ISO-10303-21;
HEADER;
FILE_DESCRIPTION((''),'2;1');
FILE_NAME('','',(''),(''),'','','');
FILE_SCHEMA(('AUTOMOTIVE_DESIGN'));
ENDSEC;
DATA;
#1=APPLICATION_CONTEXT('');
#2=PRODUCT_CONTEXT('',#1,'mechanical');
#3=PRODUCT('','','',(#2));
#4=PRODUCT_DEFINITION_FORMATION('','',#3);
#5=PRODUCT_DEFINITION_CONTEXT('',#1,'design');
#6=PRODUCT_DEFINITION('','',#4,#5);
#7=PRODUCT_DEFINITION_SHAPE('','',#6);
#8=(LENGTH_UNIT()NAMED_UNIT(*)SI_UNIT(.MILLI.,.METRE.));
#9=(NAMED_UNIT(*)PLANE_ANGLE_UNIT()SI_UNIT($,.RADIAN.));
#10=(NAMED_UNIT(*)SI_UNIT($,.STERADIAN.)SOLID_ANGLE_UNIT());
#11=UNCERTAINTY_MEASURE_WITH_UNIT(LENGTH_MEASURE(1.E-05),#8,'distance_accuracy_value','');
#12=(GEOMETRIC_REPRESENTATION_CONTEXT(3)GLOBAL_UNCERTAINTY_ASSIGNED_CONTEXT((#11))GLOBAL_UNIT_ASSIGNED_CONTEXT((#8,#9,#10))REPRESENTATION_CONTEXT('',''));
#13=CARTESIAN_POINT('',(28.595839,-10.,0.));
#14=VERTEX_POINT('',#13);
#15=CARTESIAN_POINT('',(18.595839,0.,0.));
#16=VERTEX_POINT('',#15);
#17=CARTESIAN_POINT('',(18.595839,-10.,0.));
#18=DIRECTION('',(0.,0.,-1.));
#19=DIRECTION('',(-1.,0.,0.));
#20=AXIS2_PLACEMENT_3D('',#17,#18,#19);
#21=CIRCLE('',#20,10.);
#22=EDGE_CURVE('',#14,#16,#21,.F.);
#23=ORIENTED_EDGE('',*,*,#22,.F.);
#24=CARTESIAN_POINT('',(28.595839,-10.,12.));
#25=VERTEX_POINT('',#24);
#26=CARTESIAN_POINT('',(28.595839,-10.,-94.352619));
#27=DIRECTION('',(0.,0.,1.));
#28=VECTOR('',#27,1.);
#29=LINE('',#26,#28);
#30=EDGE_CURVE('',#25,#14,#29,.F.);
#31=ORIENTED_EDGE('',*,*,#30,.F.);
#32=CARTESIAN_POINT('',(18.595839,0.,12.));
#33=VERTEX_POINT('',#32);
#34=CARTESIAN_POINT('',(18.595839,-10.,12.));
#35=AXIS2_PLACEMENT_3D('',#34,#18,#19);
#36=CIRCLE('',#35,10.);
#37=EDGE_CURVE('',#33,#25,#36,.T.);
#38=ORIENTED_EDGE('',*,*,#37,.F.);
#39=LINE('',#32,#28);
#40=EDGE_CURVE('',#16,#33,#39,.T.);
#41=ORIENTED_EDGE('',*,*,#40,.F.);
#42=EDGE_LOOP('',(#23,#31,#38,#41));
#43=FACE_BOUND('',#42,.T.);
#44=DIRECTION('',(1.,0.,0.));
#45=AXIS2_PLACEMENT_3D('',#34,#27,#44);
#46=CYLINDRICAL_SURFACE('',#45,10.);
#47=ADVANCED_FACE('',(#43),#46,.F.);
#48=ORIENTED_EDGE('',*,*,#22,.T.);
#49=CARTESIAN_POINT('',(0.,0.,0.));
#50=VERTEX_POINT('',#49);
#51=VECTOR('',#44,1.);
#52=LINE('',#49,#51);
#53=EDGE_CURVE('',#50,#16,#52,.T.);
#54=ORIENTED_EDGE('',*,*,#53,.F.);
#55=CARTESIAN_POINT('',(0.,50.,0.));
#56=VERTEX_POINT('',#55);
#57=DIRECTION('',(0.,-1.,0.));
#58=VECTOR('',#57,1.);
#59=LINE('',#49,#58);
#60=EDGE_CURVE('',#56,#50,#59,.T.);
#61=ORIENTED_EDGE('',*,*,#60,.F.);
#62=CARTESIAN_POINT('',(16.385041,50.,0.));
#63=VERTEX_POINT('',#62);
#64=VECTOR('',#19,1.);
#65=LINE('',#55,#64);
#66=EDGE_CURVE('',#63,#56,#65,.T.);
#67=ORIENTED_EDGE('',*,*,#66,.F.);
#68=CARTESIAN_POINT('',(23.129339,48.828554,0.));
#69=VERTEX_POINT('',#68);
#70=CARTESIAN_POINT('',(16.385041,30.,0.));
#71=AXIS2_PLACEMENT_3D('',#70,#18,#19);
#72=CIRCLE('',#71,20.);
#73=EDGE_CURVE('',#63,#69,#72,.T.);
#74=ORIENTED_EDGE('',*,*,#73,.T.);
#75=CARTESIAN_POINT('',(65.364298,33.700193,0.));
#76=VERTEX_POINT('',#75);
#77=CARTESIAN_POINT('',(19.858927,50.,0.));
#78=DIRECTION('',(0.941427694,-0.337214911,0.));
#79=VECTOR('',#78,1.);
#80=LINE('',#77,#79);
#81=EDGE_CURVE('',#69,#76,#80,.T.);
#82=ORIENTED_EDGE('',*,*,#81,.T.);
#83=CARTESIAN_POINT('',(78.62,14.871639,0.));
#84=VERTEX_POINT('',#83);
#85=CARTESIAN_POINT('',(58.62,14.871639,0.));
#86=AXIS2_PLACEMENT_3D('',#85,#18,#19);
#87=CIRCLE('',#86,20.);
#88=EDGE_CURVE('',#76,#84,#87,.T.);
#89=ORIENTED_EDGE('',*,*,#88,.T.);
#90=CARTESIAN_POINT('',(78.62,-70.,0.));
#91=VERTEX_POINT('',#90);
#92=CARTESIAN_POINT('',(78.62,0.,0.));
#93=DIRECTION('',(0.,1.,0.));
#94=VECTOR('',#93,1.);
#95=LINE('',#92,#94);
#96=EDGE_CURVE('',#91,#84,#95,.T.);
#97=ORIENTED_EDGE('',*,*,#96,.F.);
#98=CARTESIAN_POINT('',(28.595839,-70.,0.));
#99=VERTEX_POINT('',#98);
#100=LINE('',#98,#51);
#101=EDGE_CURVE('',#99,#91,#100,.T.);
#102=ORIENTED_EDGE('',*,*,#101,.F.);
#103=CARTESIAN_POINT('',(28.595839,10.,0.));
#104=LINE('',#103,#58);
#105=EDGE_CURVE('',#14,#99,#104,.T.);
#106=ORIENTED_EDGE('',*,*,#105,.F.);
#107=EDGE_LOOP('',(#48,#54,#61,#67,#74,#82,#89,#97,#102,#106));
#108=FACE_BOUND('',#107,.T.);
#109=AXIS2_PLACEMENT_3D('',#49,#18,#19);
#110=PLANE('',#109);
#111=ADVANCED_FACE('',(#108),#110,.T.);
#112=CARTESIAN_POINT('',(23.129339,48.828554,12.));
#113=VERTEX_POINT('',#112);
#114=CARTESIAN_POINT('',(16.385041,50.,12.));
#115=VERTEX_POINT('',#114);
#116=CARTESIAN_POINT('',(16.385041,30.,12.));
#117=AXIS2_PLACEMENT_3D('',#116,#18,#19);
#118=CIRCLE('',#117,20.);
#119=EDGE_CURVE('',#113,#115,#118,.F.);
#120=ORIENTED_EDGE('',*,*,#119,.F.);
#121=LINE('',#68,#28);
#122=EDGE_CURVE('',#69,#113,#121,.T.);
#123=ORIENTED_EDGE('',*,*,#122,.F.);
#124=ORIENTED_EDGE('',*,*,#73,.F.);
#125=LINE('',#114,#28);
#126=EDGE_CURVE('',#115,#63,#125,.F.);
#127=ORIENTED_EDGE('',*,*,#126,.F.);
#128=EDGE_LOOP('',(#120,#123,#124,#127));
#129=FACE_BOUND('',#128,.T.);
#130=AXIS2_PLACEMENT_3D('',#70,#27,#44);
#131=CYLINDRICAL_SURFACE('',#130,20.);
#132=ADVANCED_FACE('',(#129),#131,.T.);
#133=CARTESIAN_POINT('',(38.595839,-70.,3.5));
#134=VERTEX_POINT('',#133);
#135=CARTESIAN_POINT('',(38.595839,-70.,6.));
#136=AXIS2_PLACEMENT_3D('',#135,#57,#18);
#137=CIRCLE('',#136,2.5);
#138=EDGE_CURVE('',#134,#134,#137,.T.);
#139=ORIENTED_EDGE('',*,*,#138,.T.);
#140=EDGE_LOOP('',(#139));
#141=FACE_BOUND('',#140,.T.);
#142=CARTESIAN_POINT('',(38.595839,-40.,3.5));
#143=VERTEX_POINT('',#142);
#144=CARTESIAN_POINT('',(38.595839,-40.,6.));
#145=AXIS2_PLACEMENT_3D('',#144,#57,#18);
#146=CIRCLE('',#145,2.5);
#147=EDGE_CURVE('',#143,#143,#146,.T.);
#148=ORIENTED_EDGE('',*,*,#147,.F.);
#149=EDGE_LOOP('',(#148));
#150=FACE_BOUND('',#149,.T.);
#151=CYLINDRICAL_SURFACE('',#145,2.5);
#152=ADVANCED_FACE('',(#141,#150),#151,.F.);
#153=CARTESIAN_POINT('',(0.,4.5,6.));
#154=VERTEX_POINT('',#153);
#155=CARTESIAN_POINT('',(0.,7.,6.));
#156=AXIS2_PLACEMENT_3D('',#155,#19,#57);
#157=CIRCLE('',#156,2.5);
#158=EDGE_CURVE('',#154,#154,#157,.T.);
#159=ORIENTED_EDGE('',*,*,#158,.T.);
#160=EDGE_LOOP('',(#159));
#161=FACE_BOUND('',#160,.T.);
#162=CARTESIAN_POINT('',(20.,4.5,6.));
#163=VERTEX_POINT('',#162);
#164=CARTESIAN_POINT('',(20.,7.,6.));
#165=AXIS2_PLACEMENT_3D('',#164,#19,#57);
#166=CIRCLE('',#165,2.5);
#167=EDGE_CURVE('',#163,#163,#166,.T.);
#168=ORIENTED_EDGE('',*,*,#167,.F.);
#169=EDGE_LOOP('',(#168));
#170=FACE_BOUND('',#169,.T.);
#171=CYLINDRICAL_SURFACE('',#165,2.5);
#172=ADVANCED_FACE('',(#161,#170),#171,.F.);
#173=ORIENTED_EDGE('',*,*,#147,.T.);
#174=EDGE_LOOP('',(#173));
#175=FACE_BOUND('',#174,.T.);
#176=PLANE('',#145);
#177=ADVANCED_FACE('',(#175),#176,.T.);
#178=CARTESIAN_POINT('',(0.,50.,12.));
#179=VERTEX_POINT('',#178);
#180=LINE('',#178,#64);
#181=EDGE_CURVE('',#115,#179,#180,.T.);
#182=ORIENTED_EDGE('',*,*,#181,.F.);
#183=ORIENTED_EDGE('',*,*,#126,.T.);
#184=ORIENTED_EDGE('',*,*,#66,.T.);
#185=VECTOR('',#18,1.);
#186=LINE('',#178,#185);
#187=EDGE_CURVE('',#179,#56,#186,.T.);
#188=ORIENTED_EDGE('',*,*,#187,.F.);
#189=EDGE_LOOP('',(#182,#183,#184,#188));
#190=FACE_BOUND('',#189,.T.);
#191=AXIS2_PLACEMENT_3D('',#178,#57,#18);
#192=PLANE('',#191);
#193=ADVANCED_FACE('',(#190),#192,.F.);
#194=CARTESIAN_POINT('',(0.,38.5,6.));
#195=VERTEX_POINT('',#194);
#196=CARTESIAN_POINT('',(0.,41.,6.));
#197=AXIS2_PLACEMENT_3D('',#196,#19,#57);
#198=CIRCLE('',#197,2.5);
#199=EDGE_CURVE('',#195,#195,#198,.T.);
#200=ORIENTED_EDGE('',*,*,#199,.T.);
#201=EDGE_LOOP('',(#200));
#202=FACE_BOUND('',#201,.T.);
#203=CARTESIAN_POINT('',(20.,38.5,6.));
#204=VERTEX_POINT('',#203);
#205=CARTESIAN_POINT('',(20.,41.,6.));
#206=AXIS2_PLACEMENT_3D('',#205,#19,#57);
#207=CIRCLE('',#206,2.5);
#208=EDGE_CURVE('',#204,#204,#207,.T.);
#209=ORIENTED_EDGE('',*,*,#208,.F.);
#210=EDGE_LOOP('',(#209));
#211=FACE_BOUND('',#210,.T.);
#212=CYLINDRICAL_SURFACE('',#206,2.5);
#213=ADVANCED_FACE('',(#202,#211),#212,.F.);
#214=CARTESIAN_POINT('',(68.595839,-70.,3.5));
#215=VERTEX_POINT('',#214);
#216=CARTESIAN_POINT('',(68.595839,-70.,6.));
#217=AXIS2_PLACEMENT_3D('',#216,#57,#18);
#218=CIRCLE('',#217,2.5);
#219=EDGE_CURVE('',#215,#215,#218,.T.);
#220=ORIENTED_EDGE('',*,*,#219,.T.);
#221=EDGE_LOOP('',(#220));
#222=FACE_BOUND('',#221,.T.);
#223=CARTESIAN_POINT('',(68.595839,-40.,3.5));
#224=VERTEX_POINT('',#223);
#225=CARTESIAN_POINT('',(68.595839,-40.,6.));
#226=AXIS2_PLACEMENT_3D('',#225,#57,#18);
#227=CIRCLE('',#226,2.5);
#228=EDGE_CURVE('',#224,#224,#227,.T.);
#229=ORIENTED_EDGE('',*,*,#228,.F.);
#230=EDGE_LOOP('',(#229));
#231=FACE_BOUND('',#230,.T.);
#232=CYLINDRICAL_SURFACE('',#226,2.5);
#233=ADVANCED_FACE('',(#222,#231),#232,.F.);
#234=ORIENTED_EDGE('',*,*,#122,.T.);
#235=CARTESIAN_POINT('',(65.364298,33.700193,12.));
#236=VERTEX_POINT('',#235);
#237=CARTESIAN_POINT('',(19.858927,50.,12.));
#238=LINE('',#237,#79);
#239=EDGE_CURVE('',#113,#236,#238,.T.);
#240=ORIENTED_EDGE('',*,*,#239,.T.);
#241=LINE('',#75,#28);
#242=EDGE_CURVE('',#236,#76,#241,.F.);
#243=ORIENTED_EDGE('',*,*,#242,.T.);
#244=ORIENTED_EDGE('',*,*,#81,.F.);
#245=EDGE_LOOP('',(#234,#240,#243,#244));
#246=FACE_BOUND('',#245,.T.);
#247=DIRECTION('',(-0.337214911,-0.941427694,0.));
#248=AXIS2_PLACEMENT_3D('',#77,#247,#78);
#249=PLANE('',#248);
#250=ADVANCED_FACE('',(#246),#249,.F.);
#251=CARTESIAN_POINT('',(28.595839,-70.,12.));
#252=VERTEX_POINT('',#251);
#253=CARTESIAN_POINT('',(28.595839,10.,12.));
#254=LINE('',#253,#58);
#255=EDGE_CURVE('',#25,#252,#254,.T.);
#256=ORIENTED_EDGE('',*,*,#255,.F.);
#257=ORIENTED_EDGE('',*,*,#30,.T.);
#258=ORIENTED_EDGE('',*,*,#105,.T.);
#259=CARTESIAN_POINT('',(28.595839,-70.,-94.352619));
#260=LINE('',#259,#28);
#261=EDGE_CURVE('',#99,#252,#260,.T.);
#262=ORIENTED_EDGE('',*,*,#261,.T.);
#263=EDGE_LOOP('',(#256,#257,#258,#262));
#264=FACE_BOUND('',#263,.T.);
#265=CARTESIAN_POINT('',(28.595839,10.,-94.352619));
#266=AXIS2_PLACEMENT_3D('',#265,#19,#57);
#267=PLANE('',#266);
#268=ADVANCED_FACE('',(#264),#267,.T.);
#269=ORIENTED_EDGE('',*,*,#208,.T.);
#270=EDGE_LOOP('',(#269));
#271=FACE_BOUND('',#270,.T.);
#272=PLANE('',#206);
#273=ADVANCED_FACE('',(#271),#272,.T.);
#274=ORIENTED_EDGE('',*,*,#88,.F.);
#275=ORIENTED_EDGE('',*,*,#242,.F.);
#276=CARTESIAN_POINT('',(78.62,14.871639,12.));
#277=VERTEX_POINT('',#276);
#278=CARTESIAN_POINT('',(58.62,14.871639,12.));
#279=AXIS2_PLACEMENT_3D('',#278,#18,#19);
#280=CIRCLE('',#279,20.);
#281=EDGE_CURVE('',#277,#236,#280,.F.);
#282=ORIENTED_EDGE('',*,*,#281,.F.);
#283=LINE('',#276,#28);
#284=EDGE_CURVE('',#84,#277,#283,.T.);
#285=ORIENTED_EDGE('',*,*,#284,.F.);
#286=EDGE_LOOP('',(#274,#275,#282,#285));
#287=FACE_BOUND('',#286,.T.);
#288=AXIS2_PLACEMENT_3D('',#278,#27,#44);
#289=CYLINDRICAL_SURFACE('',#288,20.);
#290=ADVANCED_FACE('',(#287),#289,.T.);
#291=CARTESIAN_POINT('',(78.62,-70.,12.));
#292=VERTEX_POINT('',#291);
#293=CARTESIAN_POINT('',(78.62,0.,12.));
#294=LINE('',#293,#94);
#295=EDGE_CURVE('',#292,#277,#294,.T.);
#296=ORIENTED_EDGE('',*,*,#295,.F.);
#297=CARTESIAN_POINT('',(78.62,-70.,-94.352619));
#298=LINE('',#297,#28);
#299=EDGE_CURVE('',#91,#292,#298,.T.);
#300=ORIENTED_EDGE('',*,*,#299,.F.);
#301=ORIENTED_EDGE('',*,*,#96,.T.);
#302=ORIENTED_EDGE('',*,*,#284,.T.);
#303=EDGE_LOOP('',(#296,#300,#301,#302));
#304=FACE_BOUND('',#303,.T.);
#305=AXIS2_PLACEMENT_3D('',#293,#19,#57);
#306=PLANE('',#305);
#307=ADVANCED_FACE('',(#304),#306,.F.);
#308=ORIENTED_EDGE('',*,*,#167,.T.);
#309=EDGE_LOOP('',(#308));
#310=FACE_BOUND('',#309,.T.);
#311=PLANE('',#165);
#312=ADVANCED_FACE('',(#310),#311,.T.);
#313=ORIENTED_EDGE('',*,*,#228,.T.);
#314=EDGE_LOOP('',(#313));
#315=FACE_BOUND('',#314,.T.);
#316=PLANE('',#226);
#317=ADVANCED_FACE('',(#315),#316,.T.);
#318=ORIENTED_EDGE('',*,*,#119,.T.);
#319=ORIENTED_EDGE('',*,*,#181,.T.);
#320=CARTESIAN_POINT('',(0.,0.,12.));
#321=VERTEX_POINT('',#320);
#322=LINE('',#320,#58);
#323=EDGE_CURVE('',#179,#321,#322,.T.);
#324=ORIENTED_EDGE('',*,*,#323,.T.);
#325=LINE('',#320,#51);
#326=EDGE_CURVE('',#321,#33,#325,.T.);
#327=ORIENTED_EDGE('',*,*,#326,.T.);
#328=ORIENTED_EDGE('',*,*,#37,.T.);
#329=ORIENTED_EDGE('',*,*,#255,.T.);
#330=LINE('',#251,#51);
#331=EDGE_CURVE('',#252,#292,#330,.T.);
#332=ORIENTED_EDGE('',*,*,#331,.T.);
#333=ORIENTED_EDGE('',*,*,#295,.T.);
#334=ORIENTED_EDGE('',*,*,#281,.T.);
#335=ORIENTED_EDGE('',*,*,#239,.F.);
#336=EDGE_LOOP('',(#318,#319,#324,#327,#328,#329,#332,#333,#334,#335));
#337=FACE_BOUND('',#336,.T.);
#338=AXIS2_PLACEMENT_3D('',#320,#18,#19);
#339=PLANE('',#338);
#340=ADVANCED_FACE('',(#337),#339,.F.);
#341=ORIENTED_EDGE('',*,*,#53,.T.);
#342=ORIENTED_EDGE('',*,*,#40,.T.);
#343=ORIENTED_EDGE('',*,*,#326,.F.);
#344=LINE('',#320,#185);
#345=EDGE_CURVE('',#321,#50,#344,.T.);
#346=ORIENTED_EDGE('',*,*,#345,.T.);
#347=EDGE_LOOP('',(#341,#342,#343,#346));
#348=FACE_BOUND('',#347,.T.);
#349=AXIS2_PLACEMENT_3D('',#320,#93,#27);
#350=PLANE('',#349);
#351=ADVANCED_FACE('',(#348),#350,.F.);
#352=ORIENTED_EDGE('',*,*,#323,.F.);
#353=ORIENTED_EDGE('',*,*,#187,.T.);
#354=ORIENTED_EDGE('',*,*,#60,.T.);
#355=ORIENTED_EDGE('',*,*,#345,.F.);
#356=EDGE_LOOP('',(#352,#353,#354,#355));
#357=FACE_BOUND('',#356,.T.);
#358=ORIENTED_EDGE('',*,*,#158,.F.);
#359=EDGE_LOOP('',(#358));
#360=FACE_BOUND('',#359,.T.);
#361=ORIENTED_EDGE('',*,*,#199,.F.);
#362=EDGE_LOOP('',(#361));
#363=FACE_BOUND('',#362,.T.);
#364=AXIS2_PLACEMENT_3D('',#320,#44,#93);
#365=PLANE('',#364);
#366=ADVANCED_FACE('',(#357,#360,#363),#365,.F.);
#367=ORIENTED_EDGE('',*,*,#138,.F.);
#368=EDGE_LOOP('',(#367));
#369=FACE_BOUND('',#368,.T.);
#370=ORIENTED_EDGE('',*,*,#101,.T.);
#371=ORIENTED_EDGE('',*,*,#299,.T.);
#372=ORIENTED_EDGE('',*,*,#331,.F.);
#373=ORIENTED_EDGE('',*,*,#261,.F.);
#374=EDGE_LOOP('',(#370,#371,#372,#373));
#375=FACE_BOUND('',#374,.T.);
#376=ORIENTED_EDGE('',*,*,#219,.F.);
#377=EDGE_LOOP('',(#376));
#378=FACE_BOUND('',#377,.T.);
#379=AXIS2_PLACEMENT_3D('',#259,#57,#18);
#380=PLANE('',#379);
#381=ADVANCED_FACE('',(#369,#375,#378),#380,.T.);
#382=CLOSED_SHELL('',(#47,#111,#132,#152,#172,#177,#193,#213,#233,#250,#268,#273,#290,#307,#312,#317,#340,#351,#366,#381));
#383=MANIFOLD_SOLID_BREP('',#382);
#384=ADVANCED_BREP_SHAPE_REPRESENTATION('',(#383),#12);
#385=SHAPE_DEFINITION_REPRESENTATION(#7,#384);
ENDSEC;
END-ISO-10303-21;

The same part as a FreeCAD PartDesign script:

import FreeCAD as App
import Part
import Sketcher
from FreeCAD import Vector
Q = App.Units.Quantity


def edges_at(feature, points):
    """Names of the edges that pass closest to the given points."""
    edges = feature.Shape.Edges
    near = lambda p: min(range(len(edges)), key=lambda i: edges[i].distToShape(Part.Vertex(*p))[0])
    return sorted({f"Edge{near(p) + 1}" for p in points})


def add_polygon(sketch, points):
    """Adds a closed chain of lines whose ends are joined by coincident constraints."""
    first, n = sketch.GeometryCount, len(points)
    for a, b in zip(points, points[1:] + points[:1]):
        sketch.addGeometry(Part.LineSegment(App.Vector(*a, 0), App.Vector(*b, 0)), False)
    for i in range(n):
        sketch.addConstraint(Sketcher.Constraint("Coincident", first + i, 2, first + (i + 1) % n, 1))

doc = App.newDocument("Part")
body = doc.addObject("PartDesign::Body", "Body")

sketch1 = body.newObject("Sketcher::SketchObject", "Sketch")
sketch1.AttachmentSupport = (doc.getObject("XY_Plane"), [""])
sketch1.MapMode = "FlatFace"
add_polygon(sketch1, [(0, 50), (0, 0), (78.62, 0), (78.62, 50)])
sketch1.addConstraint(Sketcher.Constraint("Vertical", 0))
sketch1.addConstraint(Sketcher.Constraint("Horizontal", 1))
sketch1.addConstraint(Sketcher.Constraint("Vertical", 2))
sketch1.addConstraint(Sketcher.Constraint("Horizontal", 3))
sketch1.addConstraint(Sketcher.Constraint("Coincident", 0, 2, -1, 1))
sketch1.addConstraint(Sketcher.Constraint("DistanceY", 0, 2, 0, 1, Q("50 mm")))
sketch1.addConstraint(Sketcher.Constraint("DistanceX", 1, 1, 1, 2, Q("78.62 mm")))
pad1 = body.newObject("PartDesign::Pad", "Pad")
pad1.Profile = sketch1
pad1.Length = 12

sketch2 = body.newObject("Sketcher::SketchObject", "Sketch001")
sketch2.AttachmentSupport = (doc.getObject("XY_Plane"), [""])
sketch2.MapMode = "FlatFace"
sketch2.AttachmentOffset = App.Placement(Vector(0, 0, 12), App.Rotation())
add_polygon(sketch2, [(19.858927, 50), (78.62, 28.952064), (78.62, 50)])
add_polygon(sketch2, [(28.595839, 10), (28.595839, 0), (78.62, 0), (78.62, 10)])
sketch2.addConstraint(Sketcher.Constraint("Vertical", 1))
sketch2.addConstraint(Sketcher.Constraint("Horizontal", 2))
sketch2.addConstraint(Sketcher.Constraint("Vertical", 3))
sketch2.addConstraint(Sketcher.Constraint("Horizontal", 4))
sketch2.addConstraint(Sketcher.Constraint("Vertical", 5))
sketch2.addConstraint(Sketcher.Constraint("Horizontal", 6))
sketch2.addConstraint(Sketcher.Constraint("PointOnObject", 3, 2, -1))
sketch2.addConstraint(Sketcher.Constraint("Vertical", 1, 2, 4, 2))
sketch2.addConstraint(Sketcher.Constraint("DistanceY", 3, 2, 3, 1, Q("10 mm")))
sketch2.addConstraint(Sketcher.Constraint("DistanceY", -1, 1, 1, 2, Q("50 mm")))
sketch2.addConstraint(Sketcher.Constraint("DistanceX", -1, 1, 0, 2, Q("78.62 mm")))
sketch2.addConstraint(Sketcher.Constraint("DistanceX", 4, 1, 4, 2, Q("50.024161 mm")))
sketch2.addConstraint(Sketcher.Constraint("Distance", 0, Q("62.41698 mm")))
sketch2.addConstraint(Sketcher.Constraint("DistanceX", 2, 2, 2, 1, Q("58.761073 mm")))
pocket1 = body.newObject("PartDesign::Pocket", "Pocket")
pocket1.Profile = sketch2
pocket1.Type = "ThroughAll"
doc.recompute()

fillet = body.newObject("PartDesign::Fillet", "Fillet")
fillet.Base = (pocket1, edges_at(pocket1, [(78.62, 28.952, 6)]))
fillet.Radius = 20
doc.recompute()

fillet2 = body.newObject("PartDesign::Fillet", "Fillet001")
fillet2.Base = (fillet, edges_at(fillet, [(19.859, 50, 6)]))
fillet2.Radius = 20

sketch3 = body.newObject("Sketcher::SketchObject", "Sketch002")
sketch3.AttachmentSupport = (doc.getObject("YZ_Plane"), [""])
sketch3.MapMode = "FlatFace"
sketch3.addGeometry(Part.Circle(Vector(7, 6, 0), Vector(0, 0, 1), 2.5), False)
sketch3.addGeometry(Part.Circle(Vector(41, 6, 0), Vector(0, 0, 1), 2.5), False)
sketch3.addConstraint(Sketcher.Constraint("Equal", 0, 1))
sketch3.addConstraint(Sketcher.Constraint("Horizontal", 0, 3, 1, 3))
sketch3.addConstraint(Sketcher.Constraint("Diameter", 0, Q("5 mm")))
sketch3.addConstraint(Sketcher.Constraint("DistanceX", -1, 1, 0, 3, Q("7 mm")))
sketch3.addConstraint(Sketcher.Constraint("DistanceY", -1, 1, 0, 3, Q("6 mm")))
sketch3.addConstraint(Sketcher.Constraint("DistanceX", -1, 1, 1, 3, Q("41 mm")))
pocket2 = body.newObject("PartDesign::Pocket", "Pocket001")
pocket2.Profile = sketch3
pocket2.Length = 20
pocket2.Reversed = True

sketch4 = body.newObject("Sketcher::SketchObject", "Sketch003")
sketch4.AttachmentSupport = (doc.getObject("XY_Plane"), [""])
sketch4.MapMode = "FlatFace"
sketch4.AttachmentOffset = App.Placement(Vector(0, 0, 12), App.Rotation())
add_polygon(sketch4, [(28.595839, 10), (28.595839, -70), (78.62, -70), (78.62, 10)])
sketch4.addConstraint(Sketcher.Constraint("Vertical", 0))
sketch4.addConstraint(Sketcher.Constraint("Horizontal", 1))
sketch4.addConstraint(Sketcher.Constraint("Vertical", 2))
sketch4.addConstraint(Sketcher.Constraint("Horizontal", 3))
sketch4.addConstraint(Sketcher.Constraint("DistanceY", 0, 2, 0, 1, Q("80 mm")))
sketch4.addConstraint(Sketcher.Constraint("DistanceY", 0, 2, -1, 1, Q("70 mm")))
sketch4.addConstraint(Sketcher.Constraint("DistanceX", -1, 1, 1, 2, Q("78.62 mm")))
sketch4.addConstraint(Sketcher.Constraint("DistanceX", 1, 1, 1, 2, Q("50.024161 mm")))
pad2 = body.newObject("PartDesign::Pad", "Pad001")
pad2.Profile = sketch4
pad2.Length = 12
pad2.Reversed = True
doc.recompute()

fillet3 = body.newObject("PartDesign::Fillet", "Fillet002")
fillet3.Base = (pad2, edges_at(pad2, [(28.596, 0, 6)]))
fillet3.Radius = 10

sketch5 = body.newObject("Sketcher::SketchObject", "Sketch004")
sketch5.AttachmentSupport = (doc.getObject("XZ_Plane"), [""])
sketch5.MapMode = "FlatFace"
sketch5.AttachmentOffset = App.Placement(Vector(0, 0, 70), App.Rotation())
sketch5.addGeometry(Part.Circle(Vector(38.595839, 6, 0), Vector(0, 0, 1), 2.5), False)
sketch5.addGeometry(Part.Circle(Vector(68.595839, 6, 0), Vector(0, 0, 1), 2.5), False)
sketch5.addConstraint(Sketcher.Constraint("Equal", 0, 1))
sketch5.addConstraint(Sketcher.Constraint("Horizontal", 0, 3, 1, 3))
sketch5.addConstraint(Sketcher.Constraint("Diameter", 0, Q("5 mm")))
sketch5.addConstraint(Sketcher.Constraint("DistanceY", -1, 1, 0, 3, Q("6 mm")))
sketch5.addConstraint(Sketcher.Constraint("DistanceX", 0, 3, 1, 3, Q("30 mm")))
sketch5.addConstraint(Sketcher.Constraint("DistanceX", -1, 1, 0, 3, Q("38.595839 mm")))
pocket3 = body.newObject("PartDesign::Pocket", "Pocket002")
pocket3.Profile = sketch5
pocket3.Length = 30

doc.recompute()
